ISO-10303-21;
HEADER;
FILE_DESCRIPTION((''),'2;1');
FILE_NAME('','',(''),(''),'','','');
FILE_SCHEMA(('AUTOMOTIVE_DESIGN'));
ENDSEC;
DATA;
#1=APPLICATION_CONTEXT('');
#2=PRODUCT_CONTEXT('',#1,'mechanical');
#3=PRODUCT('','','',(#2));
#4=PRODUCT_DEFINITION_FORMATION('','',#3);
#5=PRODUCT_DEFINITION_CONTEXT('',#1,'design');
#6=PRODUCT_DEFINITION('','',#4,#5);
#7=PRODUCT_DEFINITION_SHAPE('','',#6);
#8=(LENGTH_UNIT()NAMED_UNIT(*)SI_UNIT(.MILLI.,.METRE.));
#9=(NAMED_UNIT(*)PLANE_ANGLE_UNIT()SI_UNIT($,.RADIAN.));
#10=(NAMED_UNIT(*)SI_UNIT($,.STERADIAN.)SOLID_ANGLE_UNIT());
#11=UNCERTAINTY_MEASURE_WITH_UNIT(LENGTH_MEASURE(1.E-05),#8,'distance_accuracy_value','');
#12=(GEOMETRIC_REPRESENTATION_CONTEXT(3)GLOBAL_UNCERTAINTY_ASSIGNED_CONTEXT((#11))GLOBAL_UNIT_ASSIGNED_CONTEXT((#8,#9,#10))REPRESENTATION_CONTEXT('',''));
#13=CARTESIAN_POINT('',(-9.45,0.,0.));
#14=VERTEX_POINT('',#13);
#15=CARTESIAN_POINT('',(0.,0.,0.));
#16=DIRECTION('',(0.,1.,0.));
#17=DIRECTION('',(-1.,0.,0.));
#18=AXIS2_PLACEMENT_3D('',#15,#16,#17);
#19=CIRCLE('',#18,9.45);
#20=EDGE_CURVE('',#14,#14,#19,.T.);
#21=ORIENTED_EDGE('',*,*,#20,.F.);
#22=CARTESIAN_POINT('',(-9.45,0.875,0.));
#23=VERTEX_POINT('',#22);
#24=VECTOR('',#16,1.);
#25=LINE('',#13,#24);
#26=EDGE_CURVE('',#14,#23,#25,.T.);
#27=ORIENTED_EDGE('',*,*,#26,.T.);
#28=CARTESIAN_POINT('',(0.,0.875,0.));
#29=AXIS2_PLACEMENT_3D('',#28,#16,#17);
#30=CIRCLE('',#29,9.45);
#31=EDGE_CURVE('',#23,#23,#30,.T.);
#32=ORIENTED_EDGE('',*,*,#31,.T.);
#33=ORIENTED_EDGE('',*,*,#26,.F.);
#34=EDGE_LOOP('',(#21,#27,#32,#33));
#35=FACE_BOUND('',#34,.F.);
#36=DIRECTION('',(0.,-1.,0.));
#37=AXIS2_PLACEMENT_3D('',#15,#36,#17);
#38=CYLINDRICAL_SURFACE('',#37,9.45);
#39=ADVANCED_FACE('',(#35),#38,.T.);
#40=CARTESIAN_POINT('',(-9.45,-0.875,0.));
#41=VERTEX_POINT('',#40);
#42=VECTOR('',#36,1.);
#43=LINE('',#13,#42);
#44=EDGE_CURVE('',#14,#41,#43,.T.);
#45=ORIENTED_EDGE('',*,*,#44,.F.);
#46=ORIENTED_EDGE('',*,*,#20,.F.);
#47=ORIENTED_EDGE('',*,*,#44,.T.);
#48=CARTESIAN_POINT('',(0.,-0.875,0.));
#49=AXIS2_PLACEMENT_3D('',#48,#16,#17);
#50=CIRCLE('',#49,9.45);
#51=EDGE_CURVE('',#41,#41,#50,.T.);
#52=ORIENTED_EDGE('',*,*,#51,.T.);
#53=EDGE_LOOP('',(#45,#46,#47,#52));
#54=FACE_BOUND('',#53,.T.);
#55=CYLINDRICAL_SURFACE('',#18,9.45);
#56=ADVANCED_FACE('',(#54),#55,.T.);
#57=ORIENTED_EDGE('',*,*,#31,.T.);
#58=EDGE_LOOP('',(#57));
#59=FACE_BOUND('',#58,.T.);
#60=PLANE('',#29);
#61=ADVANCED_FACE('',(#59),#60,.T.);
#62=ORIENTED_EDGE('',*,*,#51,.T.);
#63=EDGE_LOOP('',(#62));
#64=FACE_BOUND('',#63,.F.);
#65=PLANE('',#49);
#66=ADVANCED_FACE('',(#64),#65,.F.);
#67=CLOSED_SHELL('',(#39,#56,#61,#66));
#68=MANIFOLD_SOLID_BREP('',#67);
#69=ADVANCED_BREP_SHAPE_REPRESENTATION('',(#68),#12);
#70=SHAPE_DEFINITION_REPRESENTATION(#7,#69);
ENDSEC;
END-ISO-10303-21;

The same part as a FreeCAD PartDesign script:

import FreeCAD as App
import Part
import Sketcher
Q = App.Units.Quantity

doc = App.newDocument("Part")
body = doc.addObject("PartDesign::Body", "Body")

# Sketch on XZ plane
sketch1 = doc.addObject("Sketcher::SketchObject", "Sketch")
body.addObject(sketch1)
sketch1.AttachmentSupport = (doc.XZ_Plane, [""])
sketch1.MapMode = "FlatFace"
sketch1.addGeometry(Part.Circle(App.Vector(0, 0, 0), App.Vector(0, 0, 1), 9), False)
sketch1.addConstraint([
    Sketcher.Constraint("Coincident", 0, 3, -1, 1),
    Sketcher.Constraint("Diameter", 0, Q("18.9 mm")),
])
pad1 = doc.addObject("PartDesign::Pad", "Pad")
body.addObject(pad1)
pad1.Profile = sketch1
pad1.Length = 1.75
pad1.Midplane = True

doc.recompute()
